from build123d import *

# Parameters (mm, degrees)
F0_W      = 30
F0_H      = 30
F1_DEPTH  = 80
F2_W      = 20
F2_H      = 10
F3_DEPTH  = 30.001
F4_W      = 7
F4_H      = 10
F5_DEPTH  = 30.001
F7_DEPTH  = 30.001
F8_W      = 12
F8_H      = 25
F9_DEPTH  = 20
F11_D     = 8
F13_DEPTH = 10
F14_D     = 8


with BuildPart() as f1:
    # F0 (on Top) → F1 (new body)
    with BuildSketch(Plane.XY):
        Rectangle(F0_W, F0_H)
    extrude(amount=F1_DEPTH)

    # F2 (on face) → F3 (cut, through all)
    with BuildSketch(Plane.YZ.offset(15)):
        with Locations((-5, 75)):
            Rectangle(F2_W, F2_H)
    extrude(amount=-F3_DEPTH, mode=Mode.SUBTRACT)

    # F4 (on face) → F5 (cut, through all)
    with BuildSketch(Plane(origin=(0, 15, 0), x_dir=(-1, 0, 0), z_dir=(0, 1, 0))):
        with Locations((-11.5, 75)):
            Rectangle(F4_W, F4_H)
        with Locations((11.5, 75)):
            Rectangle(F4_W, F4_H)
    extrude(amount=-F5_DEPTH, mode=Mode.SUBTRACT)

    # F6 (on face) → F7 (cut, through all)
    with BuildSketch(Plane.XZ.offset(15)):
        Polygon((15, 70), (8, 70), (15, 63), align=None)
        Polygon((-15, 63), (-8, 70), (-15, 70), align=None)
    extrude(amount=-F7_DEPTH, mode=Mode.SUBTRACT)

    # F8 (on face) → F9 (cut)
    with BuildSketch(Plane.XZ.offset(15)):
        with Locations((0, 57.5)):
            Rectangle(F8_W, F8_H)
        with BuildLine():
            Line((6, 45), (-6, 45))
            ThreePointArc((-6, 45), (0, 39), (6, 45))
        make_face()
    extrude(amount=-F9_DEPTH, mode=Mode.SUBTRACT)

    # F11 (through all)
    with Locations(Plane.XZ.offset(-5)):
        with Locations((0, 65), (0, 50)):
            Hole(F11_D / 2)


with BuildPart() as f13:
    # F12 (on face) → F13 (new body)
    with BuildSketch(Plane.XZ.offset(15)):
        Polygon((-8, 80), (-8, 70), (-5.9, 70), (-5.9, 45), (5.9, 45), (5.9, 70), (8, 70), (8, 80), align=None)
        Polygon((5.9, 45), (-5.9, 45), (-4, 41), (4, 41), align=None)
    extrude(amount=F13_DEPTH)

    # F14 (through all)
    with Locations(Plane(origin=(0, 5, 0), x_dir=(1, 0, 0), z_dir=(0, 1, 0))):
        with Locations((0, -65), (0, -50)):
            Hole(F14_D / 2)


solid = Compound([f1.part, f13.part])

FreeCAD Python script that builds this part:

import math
import FreeCAD as App
import Part
import Sketcher
from FreeCAD import Vector
Q = App.Units.Quantity


def add_polygon(sketch, points):
    """Adds a closed chain of lines whose ends are joined by coincident constraints."""
    first, n = sketch.GeometryCount, len(points)
    for a, b in zip(points, points[1:] + points[:1]):
        sketch.addGeometry(Part.LineSegment(App.Vector(*a, 0), App.Vector(*b, 0)), False)
    for i in range(n):
        sketch.addConstraint(Sketcher.Constraint("Coincident", first + i, 2, first + (i + 1) % n, 1))

doc = App.newDocument("Part")
params = doc.addObject("Spreadsheet::Sheet", "Params")
for row, (alias, value) in enumerate([
    ("sketch1_width", "30 mm"),
    ("pad1_length", "80 mm"),
    ("sketch2_width", "20 mm"),
    ("sketch2_height", "10 mm"),
    ("sketch3_width", "7 mm"),
    ("sketch3_height", "10 mm"),
    ("sketch4_width", "7 mm"),
    ("sketch5_radius", "6 mm"),
    ("sketch5_height", "25 mm"),
    ("pocket4_length", "20 mm"),
    ("sketch6_diameter", "8 mm"),
    ("hole_diameter", "8 mm"),
    ("sketch7_width", "8 mm"),
    ("sketch7_width2", "16 mm"),
    ("sketch7_height", "10 mm"),
    ("sketch7_height2", "25 mm"),
    ("sketch7_width3", "2.1 mm"),
    ("pad2_length", "10 mm"),
    ("sketch8_diameter", "8 mm"),
    ("hole2_diameter", "8 mm"),
], start=1):
    params.set(f"A{row}", alias)
    params.set(f"B{row}", "=" + value)
    params.setAlias(f"B{row}", alias)

body = doc.addObject("PartDesign::Body", "Body")

# Sketch on XY plane
sketch1 = body.newObject("Sketcher::SketchObject", "Sketch")
sketch1.AttachmentSupport = (doc.getObject("XY_Plane"), [""])
sketch1.MapMode = "FlatFace"
add_polygon(sketch1, [(-15, 15), (-15, -15), (15, -15), (15, 15)])  # lines 0-3
sketch1.addConstraint(Sketcher.Constraint("Vertical", 0))
sketch1.addConstraint(Sketcher.Constraint("Horizontal", 1))
sketch1.addConstraint(Sketcher.Constraint("Vertical", 2))
sketch1.addConstraint(Sketcher.Constraint("Horizontal", 3))
sketch1.addConstraint(Sketcher.Constraint("Symmetric", 0, 2, 2, 2, -1, 1))
sketch1.addConstraint(Sketcher.Constraint("Equal", 3, 0))
sketch1.addConstraint(Sketcher.Constraint("DistanceX", 1, 1, 1, 2, Q("30 mm")))
sketch1.setExpression("Constraints[10]", "Params.sketch1_width")
pad1 = body.newObject("PartDesign::Pad", "Pad")
pad1.Profile = sketch1
pad1.setExpression("Length", "Params.pad1_length")

# Sketch on YZ plane
sketch2 = body.newObject("Sketcher::SketchObject", "Sketch001")
sketch2.AttachmentSupport = (doc.getObject("YZ_Plane"), [""])
sketch2.MapMode = "FlatFace"
sketch2.AttachmentOffset = App.Placement(Vector(0, 0, 15), App.Rotation())
add_polygon(sketch2, [(-15, 80), (-15, 70), (5, 70), (5, 80)])  # lines 0-3
sketch2.addConstraint(Sketcher.Constraint("Vertical", 0))
sketch2.addConstraint(Sketcher.Constraint("Horizontal", 1))
sketch2.addConstraint(Sketcher.Constraint("Vertical", 2))
sketch2.addConstraint(Sketcher.Constraint("Horizontal", 3))
sketch2.addConstraint(Sketcher.Constraint("DistanceX", 1, 1, 1, 2, Q("20 mm")))
sketch2.addConstraint(Sketcher.Constraint("DistanceY", 0, 2, 0, 1, Q("10 mm")))
sketch2.addConstraint(Sketcher.Constraint("DistanceX", 0, 2, -1, 1, Q("15 mm")))
sketch2.addConstraint(Sketcher.Constraint("DistanceY", -1, 1, 0, 2, Q("70 mm")))
sketch2.setExpression("Constraints[8]", "Params.sketch2_width")
sketch2.setExpression("Constraints[9]", "Params.sketch2_height")
pocket1 = body.newObject("PartDesign::Pocket", "Pocket")
pocket1.Profile = sketch2
pocket1.Type = "ThroughAll"

# Sketch on XZ plane
sketch3 = body.newObject("Sketcher::SketchObject", "Sketch002")
sketch3.AttachmentSupport = (doc.getObject("XZ_Plane"), [""])
sketch3.MapMode = "FlatFace"
sketch3.AttachmentOffset = App.Placement(Vector(0, 0, -15), App.Rotation())
add_polygon(sketch3, [(15, 80), (15, 70), (8, 70), (8, 80)])  # lines 0-3
add_polygon(sketch3, [(-8, 80), (-8, 70), (-15, 70), (-15, 80)])  # lines 4-7
sketch3.addConstraint(Sketcher.Constraint("Vertical", 0))
sketch3.addConstraint(Sketcher.Constraint("Horizontal", 1))
sketch3.addConstraint(Sketcher.Constraint("Vertical", 2))
sketch3.addConstraint(Sketcher.Constraint("Horizontal", 3))
sketch3.addConstraint(Sketcher.Constraint("Vertical", 4))
sketch3.addConstraint(Sketcher.Constraint("Horizontal", 5))
sketch3.addConstraint(Sketcher.Constraint("Vertical", 6))
sketch3.addConstraint(Sketcher.Constraint("Horizontal", 7))
sketch3.addConstraint(Sketcher.Constraint("Symmetric", 1, 2, 4, 2, -2))
sketch3.addConstraint(Sketcher.Constraint("Symmetric", 3, 2, 6, 2, -2))
sketch3.addConstraint(Sketcher.Constraint("DistanceX", 1, 2, 1, 1, Q("7 mm")))
sketch3.addConstraint(Sketcher.Constraint("DistanceY", 0, 2, 0, 1, Q("10 mm")))
sketch3.addConstraint(Sketcher.Constraint("DistanceX", -1, 1, 0, 2, Q("15 mm")))
sketch3.addConstraint(Sketcher.Constraint("DistanceY", -1, 1, 0, 2, Q("70 mm")))
sketch3.setExpression("Constraints[18]", "Params.sketch3_width")
sketch3.setExpression("Constraints[19]", "Params.sketch3_height")
pocket2 = body.newObject("PartDesign::Pocket", "Pocket001")
pocket2.Profile = sketch3
pocket2.Type = "ThroughAll"
pocket2.Reversed = True

# Sketch on XZ plane
sketch4 = body.newObject("Sketcher::SketchObject", "Sketch003")
sketch4.AttachmentSupport = (doc.getObject("XZ_Plane"), [""])
sketch4.MapMode = "FlatFace"
sketch4.AttachmentOffset = App.Placement(Vector(0, 0, 15), App.Rotation())
add_polygon(sketch4, [(15, 70), (8, 70), (15, 63)])  # lines 0-2
add_polygon(sketch4, [(-15, 63), (-8, 70), (-15, 70)])  # lines 3-5
sketch4.addConstraint(Sketcher.Constraint("Horizontal", 0))
sketch4.addConstraint(Sketcher.Constraint("Vertical", 2))
sketch4.addConstraint(Sketcher.Constraint("Horizontal", 4))
sketch4.addConstraint(Sketcher.Constraint("Vertical", 5))
sketch4.addConstraint(Sketcher.Constraint("Symmetric", 0, 2, 3, 2, -2))
sketch4.addConstraint(Sketcher.Constraint("Symmetric", 1, 2, 5, 2, -2))
sketch4.addConstraint(Sketcher.Constraint("Perpendicular", 1, 3))
sketch4.addConstraint(Sketcher.Constraint("DistanceX", 0, 2, 0, 1, Q("7 mm")))
sketch4.addConstraint(Sketcher.Constraint("DistanceX", -1, 1, 0, 2, Q("8 mm")))
sketch4.addConstraint(Sketcher.Constraint("DistanceY", -1, 1, 0, 2, Q("70 mm")))
sketch4.setExpression("Constraints[13]", "Params.sketch4_width")
pocket3 = body.newObject("PartDesign::Pocket", "Pocket002")
pocket3.Profile = sketch4
pocket3.Type = "ThroughAll"

# Sketch on XZ plane
sketch5 = body.newObject("Sketcher::SketchObject", "Sketch004")
sketch5.AttachmentSupport = (doc.getObject("XZ_Plane"), [""])
sketch5.MapMode = "FlatFace"
sketch5.AttachmentOffset = App.Placement(Vector(0, 0, 15), App.Rotation())
sketch5.addGeometry(Part.LineSegment(Vector(-6, 70, 0), Vector(-6, 45, 0)), False)
sketch5.addGeometry(Part.ArcOfCircle(Part.Circle(Vector(0, 45, 0), Vector(0, 0, 1), 6), math.radians(180), math.radians(360)), False)
sketch5.addGeometry(Part.LineSegment(Vector(6, 45, 0), Vector(6, 70, 0)), False)
sketch5.addGeometry(Part.LineSegment(Vector(6, 70, 0), Vector(-6, 70, 0)), False)
sketch5.addConstraint(Sketcher.Constraint("Tangent", 0, 2, 1, 1))
sketch5.addConstraint(Sketcher.Constraint("Tangent", 1, 2, 2, 1))
sketch5.addConstraint(Sketcher.Constraint("Coincident", 2, 2, 3, 1))
sketch5.addConstraint(Sketcher.Constraint("Coincident", 3, 2, 0, 1))
sketch5.addConstraint(Sketcher.Constraint("Vertical", 0))
sketch5.addConstraint(Sketcher.Constraint("Vertical", 2))
sketch5.addConstraint(Sketcher.Constraint("Horizontal", 3))
sketch5.addConstraint(Sketcher.Constraint("PointOnObject", 1, 3, -2))
sketch5.addConstraint(Sketcher.Constraint("Radius", 1, Q("6 mm")))
sketch5.addConstraint(Sketcher.Constraint("DistanceY", 0, 2, 0, 1, Q("25 mm")))
sketch5.addConstraint(Sketcher.Constraint("DistanceY", -1, 1, 1, 3, Q("45 mm")))
sketch5.setExpression("Constraints[8]", "Params.sketch5_radius")
sketch5.setExpression("Constraints[9]", "Params.sketch5_height")
pocket4 = body.newObject("PartDesign::Pocket", "Pocket003")
pocket4.Profile = sketch5
pocket4.setExpression("Length", "Params.pocket4_length")

# Sketch on XZ plane
sketch6 = body.newObject("Sketcher::SketchObject", "Sketch005")
sketch6.AttachmentSupport = (doc.getObject("XZ_Plane"), [""])
sketch6.MapMode = "FlatFace"
sketch6.AttachmentOffset = App.Placement(Vector(0, 0, -5), App.Rotation())
sketch6.addGeometry(Part.Circle(Vector(0, 65, 0), Vector(0, 0, 1), 4), False)
sketch6.addGeometry(Part.Circle(Vector(0, 50, 0), Vector(0, 0, 1), 4), False)
sketch6.addConstraint(Sketcher.Constraint("Equal", 0, 1))
sketch6.addConstraint(Sketcher.Constraint("PointOnObject", 0, 3, -2))
sketch6.addConstraint(Sketcher.Constraint("PointOnObject", 1, 3, -2))
sketch6.addConstraint(Sketcher.Constraint("Diameter", 0, Q("8 mm")))
sketch6.addConstraint(Sketcher.Constraint("DistanceY", -1, 1, 0, 3, Q("65 mm")))
sketch6.addConstraint(Sketcher.Constraint("DistanceY", -1, 1, 1, 3, Q("50 mm")))
sketch6.setExpression("Constraints[3]", "Params.sketch6_diameter")
doc.recompute()
hole = body.newObject("PartDesign::Hole", "Hole")
hole.Profile = sketch6
hole.ThreadType = "None"
hole.setExpression("Diameter", "Params.hole_diameter")
hole.DepthType = "ThroughAll"
body2 = doc.addObject("PartDesign::Body", "Body001")

# Sketch on XZ plane
sketch7 = body2.newObject("Sketcher::SketchObject", "Sketch006")
sketch7.AttachmentSupport = (doc.getObject("XZ_Plane001"), [""])
sketch7.MapMode = "FlatFace"
sketch7.AttachmentOffset = App.Placement(Vector(0, 0, 15), App.Rotation())
add_polygon(sketch7, [(-8, 80), (-8, 70), (-5.9, 70), (-5.9, 45), (-4, 41), (4, 41), (5.9, 45), (5.9, 70), (8, 70), (8, 80)])  # lines 0-9
sketch7.addConstraint(Sketcher.Constraint("Vertical", 0))
sketch7.addConstraint(Sketcher.Constraint("Horizontal", 1))
sketch7.addConstraint(Sketcher.Constraint("Vertical", 2))
sketch7.addConstraint(Sketcher.Constraint("Horizontal", 4))
sketch7.addConstraint(Sketcher.Constraint("Vertical", 6))
sketch7.addConstraint(Sketcher.Constraint("Horizontal", 7))
sketch7.addConstraint(Sketcher.Constraint("Vertical", 8))
sketch7.addConstraint(Sketcher.Constraint("Horizontal", 9))
sketch7.addConstraint(Sketcher.Constraint("Symmetric", 2, 2, 5, 2, -2))
sketch7.addConstraint(Sketcher.Constraint("Symmetric", 0, 2, 7, 2, -2))
sketch7.addConstraint(Sketcher.Constraint("Equal", 3, 5))
sketch7.addConstraint(Sketcher.Constraint("DistanceX", 4, 1, 4, 2, Q("8 mm")))
sketch7.addConstraint(Sketcher.Constraint("DistanceX", 9, 2, 9, 1, Q("16 mm")))
sketch7.addConstraint(Sketcher.Constraint("DistanceY", 0, 2, 0, 1, Q("10 mm")))
sketch7.addConstraint(Sketcher.Constraint("DistanceY", 2, 2, 2, 1, Q("25 mm")))
sketch7.addConstraint(Sketcher.Constraint("DistanceX", 1, 1, 1, 2, Q("2.1 mm")))
sketch7.addConstraint(Sketcher.Constraint("DistanceY", -1, 1, 0, 2, Q("70 mm")))
sketch7.addConstraint(Sketcher.Constraint("DistanceY", -1, 1, 3, 2, Q("41 mm")))
sketch7.setExpression("Constraints[21]", "Params.sketch7_width")
sketch7.setExpression("Constraints[22]", "Params.sketch7_width2")
sketch7.setExpression("Constraints[23]", "Params.sketch7_height")
sketch7.setExpression("Constraints[24]", "Params.sketch7_height2")
sketch7.setExpression("Constraints[25]", "Params.sketch7_width3")
pad2 = body2.newObject("PartDesign::Pad", "Pad001")
pad2.Profile = sketch7
pad2.setExpression("Length", "Params.pad2_length")

# Sketch on XZ plane
sketch8 = body2.newObject("Sketcher::SketchObject", "Sketch007")
sketch8.AttachmentSupport = (doc.getObject("XZ_Plane001"), [""])
sketch8.MapMode = "FlatFace"
sketch8.AttachmentOffset = App.Placement(Vector(0, 0, -5), App.Rotation())
sketch8.addGeometry(Part.Circle(Vector(0, 65, 0), Vector(0, 0, 1), 4), False)
sketch8.addGeometry(Part.Circle(Vector(0, 50, 0), Vector(0, 0, 1), 4), False)
sketch8.addConstraint(Sketcher.Constraint("Equal", 0, 1))
sketch8.addConstraint(Sketcher.Constraint("PointOnObject", 0, 3, -2))
sketch8.addConstraint(Sketcher.Constraint("PointOnObject", 1, 3, -2))
sketch8.addConstraint(Sketcher.Constraint("Diameter", 0, Q("8 mm")))
sketch8.addConstraint(Sketcher.Constraint("DistanceY", -1, 1, 0, 3, Q("65 mm")))
sketch8.addConstraint(Sketcher.Constraint("DistanceY", -1, 1, 1, 3, Q("50 mm")))
sketch8.setExpression("Constraints[3]", "Params.sketch8_diameter")
doc.recompute()
hole2 = body2.newObject("PartDesign::Hole", "Hole001")
hole2.Profile = sketch8
hole2.ThreadType = "None"
hole2.setExpression("Diameter", "Params.hole2_diameter")
hole2.DepthType = "ThroughAll"
hole2.Reversed = True

doc.recompute()
